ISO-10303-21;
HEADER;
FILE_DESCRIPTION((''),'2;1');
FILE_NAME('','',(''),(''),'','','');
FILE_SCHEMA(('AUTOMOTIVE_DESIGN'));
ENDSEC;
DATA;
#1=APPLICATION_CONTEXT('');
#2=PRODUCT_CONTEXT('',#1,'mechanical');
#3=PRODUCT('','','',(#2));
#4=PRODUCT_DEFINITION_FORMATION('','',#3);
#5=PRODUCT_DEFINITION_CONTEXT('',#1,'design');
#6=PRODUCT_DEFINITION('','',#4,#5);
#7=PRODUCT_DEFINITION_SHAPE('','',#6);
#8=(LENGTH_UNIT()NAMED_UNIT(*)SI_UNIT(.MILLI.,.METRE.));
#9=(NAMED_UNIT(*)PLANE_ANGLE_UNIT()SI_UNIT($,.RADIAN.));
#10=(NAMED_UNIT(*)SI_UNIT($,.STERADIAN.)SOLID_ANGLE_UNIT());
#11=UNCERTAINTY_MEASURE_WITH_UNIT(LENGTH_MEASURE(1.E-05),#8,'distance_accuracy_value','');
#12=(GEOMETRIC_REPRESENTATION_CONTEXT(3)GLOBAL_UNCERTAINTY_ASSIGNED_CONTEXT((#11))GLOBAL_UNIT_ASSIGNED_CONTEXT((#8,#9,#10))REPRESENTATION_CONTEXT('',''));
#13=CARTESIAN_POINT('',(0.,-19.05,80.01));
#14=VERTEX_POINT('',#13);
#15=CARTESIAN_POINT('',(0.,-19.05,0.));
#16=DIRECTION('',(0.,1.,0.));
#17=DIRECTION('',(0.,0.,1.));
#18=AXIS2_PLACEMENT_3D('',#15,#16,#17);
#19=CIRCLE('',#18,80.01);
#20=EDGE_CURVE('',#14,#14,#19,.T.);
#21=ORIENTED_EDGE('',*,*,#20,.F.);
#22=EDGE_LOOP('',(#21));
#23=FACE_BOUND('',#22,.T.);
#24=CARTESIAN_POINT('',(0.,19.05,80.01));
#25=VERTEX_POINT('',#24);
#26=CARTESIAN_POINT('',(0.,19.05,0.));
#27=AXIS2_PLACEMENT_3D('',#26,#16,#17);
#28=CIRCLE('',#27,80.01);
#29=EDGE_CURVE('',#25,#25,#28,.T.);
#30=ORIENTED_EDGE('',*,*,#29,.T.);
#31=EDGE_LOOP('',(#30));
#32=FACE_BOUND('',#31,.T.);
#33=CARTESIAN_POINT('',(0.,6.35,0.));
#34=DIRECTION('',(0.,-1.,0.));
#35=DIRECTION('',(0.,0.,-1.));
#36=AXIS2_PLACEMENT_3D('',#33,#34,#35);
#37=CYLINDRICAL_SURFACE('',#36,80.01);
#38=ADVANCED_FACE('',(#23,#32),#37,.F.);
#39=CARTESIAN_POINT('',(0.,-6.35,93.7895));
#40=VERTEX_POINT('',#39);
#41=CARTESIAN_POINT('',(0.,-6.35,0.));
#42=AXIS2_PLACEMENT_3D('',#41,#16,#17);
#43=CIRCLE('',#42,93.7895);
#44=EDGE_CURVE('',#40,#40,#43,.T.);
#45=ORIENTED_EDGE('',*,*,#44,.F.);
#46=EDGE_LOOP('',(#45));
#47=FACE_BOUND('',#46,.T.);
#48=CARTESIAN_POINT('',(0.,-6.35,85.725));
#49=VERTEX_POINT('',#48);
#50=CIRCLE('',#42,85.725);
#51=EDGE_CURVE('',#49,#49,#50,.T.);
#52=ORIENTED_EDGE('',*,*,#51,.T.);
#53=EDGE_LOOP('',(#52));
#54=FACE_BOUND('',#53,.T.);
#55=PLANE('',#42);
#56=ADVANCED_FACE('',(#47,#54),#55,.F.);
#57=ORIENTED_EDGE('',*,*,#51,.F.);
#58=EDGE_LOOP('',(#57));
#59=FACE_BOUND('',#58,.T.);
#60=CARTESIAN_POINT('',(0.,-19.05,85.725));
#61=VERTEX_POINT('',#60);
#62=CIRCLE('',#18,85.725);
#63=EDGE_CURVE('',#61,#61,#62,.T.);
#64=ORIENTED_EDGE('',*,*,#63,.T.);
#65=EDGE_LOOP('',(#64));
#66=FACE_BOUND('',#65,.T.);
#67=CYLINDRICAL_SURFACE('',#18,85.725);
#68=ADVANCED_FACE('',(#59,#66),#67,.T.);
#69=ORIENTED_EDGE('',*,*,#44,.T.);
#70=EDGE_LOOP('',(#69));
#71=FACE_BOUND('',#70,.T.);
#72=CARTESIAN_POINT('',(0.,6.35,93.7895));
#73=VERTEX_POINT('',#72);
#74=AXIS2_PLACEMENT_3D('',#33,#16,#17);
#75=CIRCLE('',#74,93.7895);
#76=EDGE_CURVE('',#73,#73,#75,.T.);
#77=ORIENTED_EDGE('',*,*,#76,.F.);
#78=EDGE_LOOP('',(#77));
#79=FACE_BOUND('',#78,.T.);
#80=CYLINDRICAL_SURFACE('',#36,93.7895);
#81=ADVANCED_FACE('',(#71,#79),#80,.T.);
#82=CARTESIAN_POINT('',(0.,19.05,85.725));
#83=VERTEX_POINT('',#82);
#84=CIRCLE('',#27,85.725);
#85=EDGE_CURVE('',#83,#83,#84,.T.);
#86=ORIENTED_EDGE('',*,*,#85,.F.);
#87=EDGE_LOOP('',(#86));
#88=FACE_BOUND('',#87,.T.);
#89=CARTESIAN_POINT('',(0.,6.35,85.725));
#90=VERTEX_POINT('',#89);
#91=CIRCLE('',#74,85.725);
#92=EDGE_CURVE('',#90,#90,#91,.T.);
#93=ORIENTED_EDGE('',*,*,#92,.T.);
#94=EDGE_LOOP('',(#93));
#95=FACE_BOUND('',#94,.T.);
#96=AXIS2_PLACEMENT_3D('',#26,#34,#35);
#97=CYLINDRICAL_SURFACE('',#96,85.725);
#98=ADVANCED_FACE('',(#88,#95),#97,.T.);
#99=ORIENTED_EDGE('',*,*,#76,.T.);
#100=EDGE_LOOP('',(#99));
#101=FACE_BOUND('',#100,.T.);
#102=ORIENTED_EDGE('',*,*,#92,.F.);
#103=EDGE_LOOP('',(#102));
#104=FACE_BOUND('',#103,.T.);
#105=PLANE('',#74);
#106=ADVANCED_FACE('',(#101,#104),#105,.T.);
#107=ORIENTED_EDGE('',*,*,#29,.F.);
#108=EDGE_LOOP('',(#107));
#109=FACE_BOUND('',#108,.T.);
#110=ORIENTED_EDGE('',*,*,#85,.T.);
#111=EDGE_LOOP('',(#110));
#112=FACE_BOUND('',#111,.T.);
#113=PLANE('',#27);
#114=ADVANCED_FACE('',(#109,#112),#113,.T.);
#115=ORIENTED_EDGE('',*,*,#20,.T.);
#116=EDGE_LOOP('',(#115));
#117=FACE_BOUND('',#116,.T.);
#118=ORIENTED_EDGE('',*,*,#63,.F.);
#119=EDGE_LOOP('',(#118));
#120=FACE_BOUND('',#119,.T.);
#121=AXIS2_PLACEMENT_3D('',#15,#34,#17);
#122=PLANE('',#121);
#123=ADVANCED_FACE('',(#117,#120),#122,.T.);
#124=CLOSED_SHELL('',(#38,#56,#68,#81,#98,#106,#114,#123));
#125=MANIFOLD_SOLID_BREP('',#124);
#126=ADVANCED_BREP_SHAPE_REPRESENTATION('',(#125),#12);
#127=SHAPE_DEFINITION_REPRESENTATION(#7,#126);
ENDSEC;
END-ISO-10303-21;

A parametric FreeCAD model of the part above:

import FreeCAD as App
import Part
import Sketcher

V = App.Vector
Q = App.Units.Quantity

doc = App.newDocument("Part")
body = doc.addObject("PartDesign::Body", "Body")

# Sketch on XZ plane
sketch1 = doc.addObject("Sketcher::SketchObject", "Sketch")
body.addObject(sketch1)
sketch1.AttachmentSupport = (doc.XZ_Plane, [""])
sketch1.MapMode = "FlatFace"
sketch1.addGeometry([
    Part.Circle(V(0, 0, 0), V(0, 0, 1), 93.7895),
    Part.Circle(V(0, 0, 0), V(0, 0, 1), 80.01),
], False)
sketch1.addConstraint([
    Sketcher.Constraint("Coincident", 0, 3, -1, 1),
    Sketcher.Constraint("Coincident", 1, 3, -1, 1),
    Sketcher.Constraint("Diameter", 1, Q("6.3 in")),
    Sketcher.Constraint("Diameter", 0, Q("7.385 in")),
])
pad1 = doc.addObject("PartDesign::Pad", "Pad")
body.addObject(pad1)
pad1.Profile = sketch1
pad1.Length = Q("0.5 in")
pad1.Midplane = True

# Sketch on XZ plane
sketch2 = doc.addObject("Sketcher::SketchObject", "Sketch001")
body.addObject(sketch2)
sketch2.AttachmentSupport = (doc.XZ_Plane, [""])
sketch2.MapMode = "FlatFace"
sketch2.AttachmentOffset = App.Placement(V(0, 0, -0.25 * 25.4), App.Rotation())
sketch2.addGeometry([
    Part.Circle(V(0, 0, 0), V(0, 0, 1), 85.725),
    Part.Circle(V(0, 0, 0), V(0, 0, 1), 80.01),
], False)
sketch2.addConstraint([
    Sketcher.Constraint("Coincident", 0, 3, -1, 1),
    Sketcher.Constraint("Coincident", 1, 3, -1, 1),
    Sketcher.Constraint("Diameter", 1, Q("6.3 in")),
    Sketcher.Constraint("Diameter", 0, Q("6.75 in")),
])
pad2 = doc.addObject("PartDesign::Pad", "Pad001")
body.addObject(pad2)
pad2.Profile = sketch2
pad2.Length = Q("0.5 in")
pad2.Reversed = True
doc.recompute()

mirrored = doc.addObject("PartDesign::Mirrored", "Mirrored")
body.addObject(mirrored)
mirrored.Originals = [pad2]
mirrored.MirrorPlane = (doc.XZ_Plane, [""])
body.Tip = mirrored

doc.recompute()
